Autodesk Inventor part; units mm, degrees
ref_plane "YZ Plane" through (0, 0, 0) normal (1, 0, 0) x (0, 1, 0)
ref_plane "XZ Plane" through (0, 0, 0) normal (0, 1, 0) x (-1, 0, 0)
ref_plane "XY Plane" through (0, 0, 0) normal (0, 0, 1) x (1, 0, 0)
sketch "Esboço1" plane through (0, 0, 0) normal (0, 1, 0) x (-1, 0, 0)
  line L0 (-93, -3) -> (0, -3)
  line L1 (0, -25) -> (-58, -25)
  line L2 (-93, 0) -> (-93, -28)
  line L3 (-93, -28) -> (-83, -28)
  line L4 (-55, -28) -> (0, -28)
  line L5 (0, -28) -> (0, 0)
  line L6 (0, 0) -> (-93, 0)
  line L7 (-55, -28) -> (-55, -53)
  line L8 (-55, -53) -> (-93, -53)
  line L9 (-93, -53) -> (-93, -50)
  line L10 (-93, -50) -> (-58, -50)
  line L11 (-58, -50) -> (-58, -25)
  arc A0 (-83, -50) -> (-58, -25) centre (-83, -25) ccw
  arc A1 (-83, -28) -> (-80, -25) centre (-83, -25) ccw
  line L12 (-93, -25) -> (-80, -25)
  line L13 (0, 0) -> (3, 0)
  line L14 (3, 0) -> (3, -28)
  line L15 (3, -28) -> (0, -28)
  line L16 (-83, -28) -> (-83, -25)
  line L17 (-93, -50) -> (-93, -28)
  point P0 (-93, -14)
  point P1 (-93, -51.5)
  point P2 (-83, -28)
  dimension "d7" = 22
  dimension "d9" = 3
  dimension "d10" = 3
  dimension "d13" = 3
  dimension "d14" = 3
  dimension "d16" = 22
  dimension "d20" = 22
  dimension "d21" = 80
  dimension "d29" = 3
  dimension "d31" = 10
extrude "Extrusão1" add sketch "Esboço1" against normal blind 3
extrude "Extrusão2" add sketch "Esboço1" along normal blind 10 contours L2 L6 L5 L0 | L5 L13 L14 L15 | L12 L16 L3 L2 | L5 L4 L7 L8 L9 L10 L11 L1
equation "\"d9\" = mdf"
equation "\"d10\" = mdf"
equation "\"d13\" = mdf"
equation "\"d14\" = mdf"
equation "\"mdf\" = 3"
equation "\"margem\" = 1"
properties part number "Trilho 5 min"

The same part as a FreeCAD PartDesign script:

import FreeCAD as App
import Part
import Sketcher

V = App.Vector

doc = App.newDocument("Part")
body = doc.addObject("PartDesign::Body", "Body")

sketch1 = body.newObject("Sketcher::SketchObject", "Sketch")
sketch1.AttachmentSupport = (doc.getObject("XZ_Plane"), [""])
sketch1.MapMode = "FlatFace"
sketch1.addGeometry(Part.LineSegment(V(93, 0, 0), V(93, -53, 0)), False)
sketch1.addGeometry(Part.LineSegment(V(93, -53, 0), V(55, -53, 0)), False)
sketch1.addGeometry(Part.LineSegment(V(55, -53, 0), V(55, -28, 0)), False)
sketch1.addGeometry(Part.LineSegment(V(55, -28, 0), V(-3, -28, 0)), False)
sketch1.addGeometry(Part.LineSegment(V(-3, -28, 0), V(-3, 0, 0)), False)
sketch1.addGeometry(Part.LineSegment(V(-3, 0, 0), V(93, 0, 0)), False)
sketch1.addConstraint(Sketcher.Constraint("Coincident", 0, 2, 1, 1))
sketch1.addConstraint(Sketcher.Constraint("Coincident", 1, 2, 2, 1))
sketch1.addConstraint(Sketcher.Constraint("Coincident", 2, 2, 3, 1))
sketch1.addConstraint(Sketcher.Constraint("Coincident", 3, 2, 4, 1))
sketch1.addConstraint(Sketcher.Constraint("Coincident", 4, 2, 5, 1))
sketch1.addConstraint(Sketcher.Constraint("Coincident", 5, 2, 0, 1))
sketch1.addConstraint(Sketcher.Constraint("Vertical", 0))
sketch1.addConstraint(Sketcher.Constraint("Horizontal", 1))
sketch1.addConstraint(Sketcher.Constraint("Vertical", 2))
sketch1.addConstraint(Sketcher.Constraint("Horizontal", 3))
sketch1.addConstraint(Sketcher.Constraint("Vertical", 4))
sketch1.addConstraint(Sketcher.Constraint("Horizontal", 5))
sketch1.addConstraint(Sketcher.Constraint("PointOnObject", 4, 2, -1))
sketch1.addConstraint(Sketcher.Constraint("DistanceX", 3, 2, -1, 1, 3.0))
sketch1.addConstraint(Sketcher.Constraint("DistanceX", 1, 2, 1, 1, 38.0))
sketch1.addConstraint(Sketcher.Constraint("DistanceX", 3, 2, 3, 1, 58.0))
sketch1.addConstraint(Sketcher.Constraint("DistanceY", 0, 2, 0, 1, 53.0))
sketch1.addConstraint(Sketcher.Constraint("DistanceY", 2, 1, 2, 2, 25.0))
pad1 = body.newObject("PartDesign::Pad", "Pad")
pad1.Profile = sketch1
pad1.Length = 3

sketch2 = body.newObject("Sketcher::SketchObject", "Sketch001")
sketch2.AttachmentSupport = (doc.getObject("XZ_Plane"), [""])
sketch2.MapMode = "FlatFace"
sketch2.addGeometry(Part.LineSegment(V(93, 0, 0), V(93, -3, 0)), False)
sketch2.addGeometry(Part.LineSegment(V(93, -3, 0), V(0, -3, 0)), False)
sketch2.addGeometry(Part.LineSegment(V(0, -3, 0), V(0, -25, 0)), False)
sketch2.addGeometry(Part.LineSegment(V(0, -25, 0), V(58, -25, 0)), False)
sketch2.addGeometry(Part.LineSegment(V(58, -25, 0), V(58, -50, 0)), False)
sketch2.addGeometry(Part.LineSegment(V(58, -50, 0), V(93, -50, 0)), False)
sketch2.addGeometry(Part.LineSegment(V(93, -50, 0), V(93, -53, 0)), False)
sketch2.addGeometry(Part.LineSegment(V(93, -53, 0), V(55, -53, 0)), False)
sketch2.addGeometry(Part.LineSegment(V(55, -53, 0), V(55, -28, 0)), False)
sketch2.addGeometry(Part.LineSegment(V(55, -28, 0), V(-3, -28, 0)), False)
sketch2.addGeometry(Part.LineSegment(V(-3, -28, 0), V(-3, 0, 0)), False)
sketch2.addGeometry(Part.LineSegment(V(-3, 0, 0), V(93, 0, 0)), False)
sketch2.addGeometry(Part.LineSegment(V(83, -25, 0), V(93, -25, 0)), False)
sketch2.addGeometry(Part.LineSegment(V(93, -25, 0), V(93, -28, 0)), False)
sketch2.addGeometry(Part.LineSegment(V(93, -28, 0), V(83, -28, 0)), False)
sketch2.addGeometry(Part.LineSegment(V(83, -28, 0), V(83, -25, 0)), False)
sketch2.addConstraint(Sketcher.Constraint("Coincident", 0, 2, 1, 1))
sketch2.addConstraint(Sketcher.Constraint("Coincident", 1, 2, 2, 1))
sketch2.addConstraint(Sketcher.Constraint("Coincident", 2, 2, 3, 1))
sketch2.addConstraint(Sketcher.Constraint("Coincident", 3, 2, 4, 1))
sketch2.addConstraint(Sketcher.Constraint("Coincident", 4, 2, 5, 1))
sketch2.addConstraint(Sketcher.Constraint("Coincident", 5, 2, 6, 1))
sketch2.addConstraint(Sketcher.Constraint("Coincident", 6, 2, 7, 1))
sketch2.addConstraint(Sketcher.Constraint("Coincident", 7, 2, 8, 1))
sketch2.addConstraint(Sketcher.Constraint("Coincident", 8, 2, 9, 1))
sketch2.addConstraint(Sketcher.Constraint("Coincident", 9, 2, 10, 1))
sketch2.addConstraint(Sketcher.Constraint("Coincident", 10, 2, 11, 1))
sketch2.addConstraint(Sketcher.Constraint("Coincident", 11, 2, 0, 1))
sketch2.addConstraint(Sketcher.Constraint("Coincident", 12, 2, 13, 1))
sketch2.addConstraint(Sketcher.Constraint("Coincident", 13, 2, 14, 1))
sketch2.addConstraint(Sketcher.Constraint("Coincident", 14, 2, 15, 1))
sketch2.addConstraint(Sketcher.Constraint("Coincident", 15, 2, 12, 1))
sketch2.addConstraint(Sketcher.Constraint("Vertical", 0))
sketch2.addConstraint(Sketcher.Constraint("Horizontal", 1))
sketch2.addConstraint(Sketcher.Constraint("Vertical", 2))
sketch2.addConstraint(Sketcher.Constraint("Horizontal", 3))
sketch2.addConstraint(Sketcher.Constraint("Vertical", 4))
sketch2.addConstraint(Sketcher.Constraint("Horizontal", 5))
sketch2.addConstraint(Sketcher.Constraint("Vertical", 6))
sketch2.addConstraint(Sketcher.Constraint("Horizontal", 7))
sketch2.addConstraint(Sketcher.Constraint("Vertical", 8))
sketch2.addConstraint(Sketcher.Constraint("Horizontal", 9))
sketch2.addConstraint(Sketcher.Constraint("Vertical", 10))
sketch2.addConstraint(Sketcher.Constraint("Horizontal", 11))
sketch2.addConstraint(Sketcher.Constraint("Horizontal", 12))
sketch2.addConstraint(Sketcher.Constraint("Vertical", 13))
sketch2.addConstraint(Sketcher.Constraint("Horizontal", 14))
sketch2.addConstraint(Sketcher.Constraint("Vertical", 15))
sketch2.addConstraint(Sketcher.Constraint("PointOnObject", 1, 2, -2))
sketch2.addConstraint(Sketcher.Constraint("PointOnObject", 10, 2, -1))
sketch2.addConstraint(Sketcher.Constraint("Horizontal", 3, 2, 12, 2))
sketch2.addConstraint(Sketcher.Constraint("Horizontal", 9, 2, 13, 2))
sketch2.addConstraint(Sketcher.Constraint("Vertical", 0, 2, 5, 2))
sketch2.addConstraint(Sketcher.Constraint("Vertical", 11, 2, 12, 2))
sketch2.addConstraint(Sketcher.Constraint("Equal", 3, 9))
sketch2.addConstraint(Sketcher.Constraint("Equal", 0, 6))
sketch2.addConstraint(Sketcher.Constraint("Equal", 4, 8))
sketch2.addConstraint(Sketcher.Constraint("DistanceX", 12, 1, 12, 2, 10.0))
sketch2.addConstraint(Sketcher.Constraint("DistanceY", 0, 2, 0, 1, 3.0))
sketch2.addConstraint(Sketcher.Constraint("DistanceY", 2, 2, 2, 1, 22.0))
sketch2.addConstraint(Sketcher.Constraint("DistanceX", 9, 2, -1, 1, 3.0))
sketch2.addConstraint(Sketcher.Constraint("DistanceY", 4, 2, 8, 2, 22.0))
sketch2.addConstraint(Sketcher.Constraint("DistanceX", 1, 2, 1, 1, 93.0))
sketch2.addConstraint(Sketcher.Constraint("DistanceX", 3, 1, 3, 2, 58.0))
pad2 = body.newObject("PartDesign::Pad", "Pad001")
pad2.Profile = sketch2
pad2.Length = 10
pad2.Reversed = True

doc.recompute()
